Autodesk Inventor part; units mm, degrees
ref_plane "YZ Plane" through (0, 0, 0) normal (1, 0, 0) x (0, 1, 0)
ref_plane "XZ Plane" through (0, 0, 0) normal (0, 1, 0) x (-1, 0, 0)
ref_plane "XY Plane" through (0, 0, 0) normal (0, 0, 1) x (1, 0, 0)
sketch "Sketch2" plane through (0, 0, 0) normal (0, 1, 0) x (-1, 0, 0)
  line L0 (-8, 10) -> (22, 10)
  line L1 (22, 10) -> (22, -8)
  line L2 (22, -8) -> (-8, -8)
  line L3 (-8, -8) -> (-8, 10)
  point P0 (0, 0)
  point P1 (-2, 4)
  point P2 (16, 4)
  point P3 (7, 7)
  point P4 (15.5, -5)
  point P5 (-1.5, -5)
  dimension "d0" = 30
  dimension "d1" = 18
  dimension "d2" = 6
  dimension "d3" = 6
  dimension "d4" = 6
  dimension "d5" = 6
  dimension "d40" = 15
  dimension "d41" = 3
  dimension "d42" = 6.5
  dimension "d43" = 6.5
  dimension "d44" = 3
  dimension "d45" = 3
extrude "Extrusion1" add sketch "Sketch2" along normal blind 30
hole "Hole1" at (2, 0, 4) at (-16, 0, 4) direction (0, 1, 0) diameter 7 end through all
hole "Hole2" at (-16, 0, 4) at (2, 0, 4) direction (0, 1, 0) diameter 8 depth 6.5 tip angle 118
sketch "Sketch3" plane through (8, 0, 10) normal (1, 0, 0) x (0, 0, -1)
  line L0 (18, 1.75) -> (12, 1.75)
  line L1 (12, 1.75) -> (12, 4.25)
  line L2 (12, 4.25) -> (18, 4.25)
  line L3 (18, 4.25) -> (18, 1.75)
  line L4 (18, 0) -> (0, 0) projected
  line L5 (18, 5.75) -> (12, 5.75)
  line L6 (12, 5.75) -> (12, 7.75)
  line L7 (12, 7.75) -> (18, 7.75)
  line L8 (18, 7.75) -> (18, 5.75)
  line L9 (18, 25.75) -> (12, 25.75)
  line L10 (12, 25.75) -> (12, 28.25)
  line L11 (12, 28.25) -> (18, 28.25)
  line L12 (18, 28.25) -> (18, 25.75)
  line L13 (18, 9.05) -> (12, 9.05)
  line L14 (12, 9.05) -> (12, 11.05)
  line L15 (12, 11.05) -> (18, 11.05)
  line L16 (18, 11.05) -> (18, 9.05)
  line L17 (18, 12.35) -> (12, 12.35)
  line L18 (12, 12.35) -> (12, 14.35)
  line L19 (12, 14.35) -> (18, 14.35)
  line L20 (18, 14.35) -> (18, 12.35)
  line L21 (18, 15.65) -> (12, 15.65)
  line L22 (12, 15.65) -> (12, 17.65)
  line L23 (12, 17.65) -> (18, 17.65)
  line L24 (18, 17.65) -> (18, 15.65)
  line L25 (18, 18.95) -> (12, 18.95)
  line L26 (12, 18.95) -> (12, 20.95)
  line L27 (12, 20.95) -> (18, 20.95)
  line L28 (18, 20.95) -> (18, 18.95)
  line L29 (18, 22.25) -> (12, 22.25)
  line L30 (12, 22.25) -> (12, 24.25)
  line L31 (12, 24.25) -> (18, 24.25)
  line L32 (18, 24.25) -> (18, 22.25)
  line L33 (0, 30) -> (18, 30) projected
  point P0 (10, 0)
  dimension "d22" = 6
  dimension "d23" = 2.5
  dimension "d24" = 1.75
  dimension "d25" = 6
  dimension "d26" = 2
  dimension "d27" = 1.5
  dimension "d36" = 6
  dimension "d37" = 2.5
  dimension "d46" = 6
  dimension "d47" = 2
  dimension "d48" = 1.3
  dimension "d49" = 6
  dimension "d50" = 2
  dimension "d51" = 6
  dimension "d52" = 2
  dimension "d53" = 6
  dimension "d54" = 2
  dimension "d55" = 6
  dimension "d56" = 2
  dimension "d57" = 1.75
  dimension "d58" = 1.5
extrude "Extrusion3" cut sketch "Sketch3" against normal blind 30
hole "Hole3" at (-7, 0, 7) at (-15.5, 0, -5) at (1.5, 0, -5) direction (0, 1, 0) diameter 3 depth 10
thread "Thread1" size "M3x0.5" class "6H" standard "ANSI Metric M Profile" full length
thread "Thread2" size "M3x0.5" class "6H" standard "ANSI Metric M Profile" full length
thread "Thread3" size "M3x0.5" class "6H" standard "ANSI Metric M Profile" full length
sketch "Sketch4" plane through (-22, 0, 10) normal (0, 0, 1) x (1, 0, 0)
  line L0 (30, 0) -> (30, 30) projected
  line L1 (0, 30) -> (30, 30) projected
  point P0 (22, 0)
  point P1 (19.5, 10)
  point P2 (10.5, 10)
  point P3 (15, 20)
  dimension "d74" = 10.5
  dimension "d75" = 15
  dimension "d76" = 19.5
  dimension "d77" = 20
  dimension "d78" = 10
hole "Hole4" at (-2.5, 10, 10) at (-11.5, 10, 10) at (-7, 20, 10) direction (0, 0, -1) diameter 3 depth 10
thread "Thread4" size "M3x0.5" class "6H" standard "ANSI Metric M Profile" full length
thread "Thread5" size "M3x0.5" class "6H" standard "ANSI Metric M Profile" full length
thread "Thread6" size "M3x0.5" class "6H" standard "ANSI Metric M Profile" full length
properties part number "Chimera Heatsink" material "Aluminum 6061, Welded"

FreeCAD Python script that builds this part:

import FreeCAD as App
import Part
import Sketcher
from FreeCAD import Vector
Q = App.Units.Quantity

doc = App.newDocument("Part")
params = doc.addObject("Spreadsheet::Sheet", "Params")
for row, (alias, value) in enumerate([
    ("sketch1_width", "30 mm"),
    ("sketch1_height", "18 mm"),
    ("pad1_length", "30 mm"),
    ("sketch2_diameter", "7 mm"),
    ("hole_diameter", "7 mm"),
    ("sketch3_diameter", "8 mm"),
    ("hole2_diameter", "8 mm"),
    ("hole2_depth", "6.5 mm"),
    ("sketch4_width", "2 mm"),
    ("sketch4_height", "6 mm"),
    ("sketch4_width2", "2.5 mm"),
    ("pocket1_length", "30 mm"),
    ("sketch5_diameter", "3 mm"),
    ("hole3_diameter", "3 mm"),
    ("hole3_depth", "10 mm"),
    ("sketch6_diameter", "3 mm"),
    ("hole4_diameter", "3 mm"),
    ("hole4_depth", "10 mm"),
], start=1):
    params.set(f"A{row}", alias)
    params.set(f"B{row}", "=" + value)
    params.setAlias(f"B{row}", alias)

body = doc.addObject("PartDesign::Body", "Body")

sketch1 = body.newObject("Sketcher::SketchObject", "Sketch")
sketch1.AttachmentSupport = (doc.getObject("XZ_Plane"), [""])
sketch1.MapMode = "FlatFace"
sketch1.addGeometry(Part.LineSegment(Vector(-22, 10, 0), Vector(8, 10, 0)), False)
sketch1.addGeometry(Part.LineSegment(Vector(8, 10, 0), Vector(8, -8, 0)), False)
sketch1.addGeometry(Part.LineSegment(Vector(8, -8, 0), Vector(-22, -8, 0)), False)
sketch1.addGeometry(Part.LineSegment(Vector(-22, -8, 0), Vector(-22, 10, 0)), False)
sketch1.addConstraint(Sketcher.Constraint("Coincident", 0, 2, 1, 1))
sketch1.addConstraint(Sketcher.Constraint("Coincident", 1, 2, 2, 1))
sketch1.addConstraint(Sketcher.Constraint("Coincident", 2, 2, 3, 1))
sketch1.addConstraint(Sketcher.Constraint("Coincident", 3, 2, 0, 1))
sketch1.addConstraint(Sketcher.Constraint("Horizontal", 0))
sketch1.addConstraint(Sketcher.Constraint("Vertical", 1))
sketch1.addConstraint(Sketcher.Constraint("Horizontal", 2))
sketch1.addConstraint(Sketcher.Constraint("Vertical", 3))
sketch1.addConstraint(Sketcher.Constraint("DistanceX", 0, 1, 0, 2, Q("30 mm")))
sketch1.addConstraint(Sketcher.Constraint("DistanceY", 1, 2, 1, 1, Q("18 mm")))
sketch1.addConstraint(Sketcher.Constraint("DistanceX", -1, 1, 0, 2, Q("8 mm")))
sketch1.addConstraint(Sketcher.Constraint("DistanceY", -1, 1, 0, 2, Q("10 mm")))
sketch1.setExpression("Constraints[8]", "Params.sketch1_width")
sketch1.setExpression("Constraints[9]", "Params.sketch1_height")
pad1 = body.newObject("PartDesign::Pad", "Pad")
pad1.Profile = sketch1
pad1.setExpression("Length", "Params.pad1_length")
pad1.Reversed = True

sketch2 = body.newObject("Sketcher::SketchObject", "Sketch001")
sketch2.AttachmentSupport = (doc.getObject("XZ_Plane"), [""])
sketch2.MapMode = "FlatFace"
sketch2.addGeometry(Part.Circle(Vector(2, 4, 0), Vector(0, 0, 1), 3.5), False)
sketch2.addGeometry(Part.Circle(Vector(-16, 4, 0), Vector(0, 0, 1), 3.5), False)
sketch2.addConstraint(Sketcher.Constraint("Equal", 0, 1))
sketch2.addConstraint(Sketcher.Constraint("Horizontal", 0, 3, 1, 3))
sketch2.addConstraint(Sketcher.Constraint("Diameter", 0, Q("7 mm")))
sketch2.addConstraint(Sketcher.Constraint("DistanceX", -1, 1, 0, 3, Q("2 mm")))
sketch2.addConstraint(Sketcher.Constraint("DistanceY", -1, 1, 0, 3, Q("4 mm")))
sketch2.addConstraint(Sketcher.Constraint("DistanceX", 1, 3, -1, 1, Q("16 mm")))
sketch2.setExpression("Constraints[2]", "Params.sketch2_diameter")
doc.recompute()
hole = body.newObject("PartDesign::Hole", "Hole")
hole.Profile = sketch2
hole.ThreadType = "None"
hole.setExpression("Diameter", "Params.hole_diameter")
hole.DepthType = "ThroughAll"

sketch3 = body.newObject("Sketcher::SketchObject", "Sketch002")
sketch3.AttachmentSupport = (doc.getObject("XZ_Plane"), [""])
sketch3.MapMode = "FlatFace"
sketch3.addGeometry(Part.Circle(Vector(-16, 4, 0), Vector(0, 0, 1), 4), False)
sketch3.addGeometry(Part.Circle(Vector(2, 4, 0), Vector(0, 0, 1), 4), False)
sketch3.addConstraint(Sketcher.Constraint("Equal", 0, 1))
sketch3.addConstraint(Sketcher.Constraint("Horizontal", 0, 3, 1, 3))
sketch3.addConstraint(Sketcher.Constraint("Diameter", 0, Q("8 mm")))
sketch3.addConstraint(Sketcher.Constraint("DistanceX", 0, 3, -1, 1, Q("16 mm")))
sketch3.addConstraint(Sketcher.Constraint("DistanceY", -1, 1, 0, 3, Q("4 mm")))
sketch3.addConstraint(Sketcher.Constraint("DistanceX", -1, 1, 1, 3, Q("2 mm")))
sketch3.setExpression("Constraints[2]", "Params.sketch3_diameter")
doc.recompute()
hole2 = body.newObject("PartDesign::Hole", "Hole001")
hole2.Profile = sketch3
hole2.ThreadType = "None"
hole2.setExpression("Diameter", "Params.hole2_diameter")
hole2.DepthType = "Dimension"
hole2.setExpression("Depth", "Params.hole2_depth")
hole2.DrillPoint = "Angled"
hole2.DrillPointAngle = 118

sketch4 = body.newObject("Sketcher::SketchObject", "Sketch003")
sketch4.AttachmentSupport = (doc.getObject("YZ_Plane"), [""])
sketch4.MapMode = "FlatFace"
sketch4.AttachmentOffset = App.Placement(Vector(0, 0, 8), App.Rotation())
sketch4.addGeometry(Part.LineSegment(Vector(1.8, -2, 0), Vector(1.8, -8, 0)), False)
sketch4.addGeometry(Part.LineSegment(Vector(1.8, -8, 0), Vector(4.2, -8, 0)), False)
sketch4.addGeometry(Part.LineSegment(Vector(4.2, -8, 0), Vector(4.2, -2, 0)), False)
sketch4.addGeometry(Part.LineSegment(Vector(4.2, -2, 0), Vector(1.8, -2, 0)), False)
sketch4.addGeometry(Part.LineSegment(Vector(5.8, -2, 0), Vector(5.8, -8, 0)), False)
sketch4.addGeometry(Part.LineSegment(Vector(5.8, -8, 0), Vector(7.8, -8, 0)), False)
sketch4.addGeometry(Part.LineSegment(Vector(7.8, -8, 0), Vector(7.8, -2, 0)), False)
sketch4.addGeometry(Part.LineSegment(Vector(7.8, -2, 0), Vector(5.8, -2, 0)), False)
sketch4.addGeometry(Part.LineSegment(Vector(25.8, -2, 0), Vector(25.8, -8, 0)), False)
sketch4.addGeometry(Part.LineSegment(Vector(25.8, -8, 0), Vector(28.2, -8, 0)), False)
sketch4.addGeometry(Part.LineSegment(Vector(28.2, -8, 0), Vector(28.2, -2, 0)), False)
sketch4.addGeometry(Part.LineSegment(Vector(28.2, -2, 0), Vector(25.8, -2, 0)), False)
sketch4.addGeometry(Part.LineSegment(Vector(9.1, -2, 0), Vector(9.1, -8, 0)), False)
sketch4.addGeometry(Part.LineSegment(Vector(9.1, -8, 0), Vector(11.1, -8, 0)), False)
sketch4.addGeometry(Part.LineSegment(Vector(11.1, -8, 0), Vector(11.1, -2, 0)), False)
sketch4.addGeometry(Part.LineSegment(Vector(11.1, -2, 0), Vector(9.1, -2, 0)), False)
sketch4.addGeometry(Part.LineSegment(Vector(12.3, -2, 0), Vector(12.3, -8, 0)), False)
sketch4.addGeometry(Part.LineSegment(Vector(12.3, -8, 0), Vector(14.3, -8, 0)), False)
sketch4.addGeometry(Part.LineSegment(Vector(14.3, -8, 0), Vector(14.3, -2, 0)), False)
sketch4.addGeometry(Part.LineSegment(Vector(14.3, -2, 0), Vector(12.3, -2, 0)), False)
sketch4.addGeometry(Part.LineSegment(Vector(15.7, -2, 0), Vector(15.7, -8, 0)), False)
sketch4.addGeometry(Part.LineSegment(Vector(15.7, -8, 0), Vector(17.6, -8, 0)), False)
sketch4.addGeometry(Part.LineSegment(Vector(17.6, -8, 0), Vector(17.6, -2, 0)), False)
sketch4.addGeometry(Part.LineSegment(Vector(17.6, -2, 0), Vector(15.7, -2, 0)), False)
sketch4.addGeometry(Part.LineSegment(Vector(18.9, -2, 0), Vector(18.9, -8, 0)), False)
sketch4.addGeometry(Part.LineSegment(Vector(18.9, -8, 0), Vector(20.9, -8, 0)), False)
sketch4.addGeometry(Part.LineSegment(Vector(20.9, -8, 0), Vector(20.9, -2, 0)), False)
sketch4.addGeometry(Part.LineSegment(Vector(20.9, -2, 0), Vector(18.9, -2, 0)), False)
sketch4.addGeometry(Part.LineSegment(Vector(22.2, -2, 0), Vector(22.2, -8, 0)), False)
sketch4.addGeometry(Part.LineSegment(Vector(22.2, -8, 0), Vector(24.2, -8, 0)), False)
sketch4.addGeometry(Part.LineSegment(Vector(24.2, -8, 0), Vector(24.2, -2, 0)), False)
sketch4.addGeometry(Part.LineSegment(Vector(24.2, -2, 0), Vector(22.2, -2, 0)), False)
sketch4.addConstraint(Sketcher.Constraint("Coincident", 0, 2, 1, 1))
sketch4.addConstraint(Sketcher.Constraint("Coincident", 1, 2, 2, 1))
sketch4.addConstraint(Sketcher.Constraint("Coincident", 2, 2, 3, 1))
sketch4.addConstraint(Sketcher.Constraint("Coincident", 3, 2, 0, 1))
sketch4.addConstraint(Sketcher.Constraint("Coincident", 4, 2, 5, 1))
sketch4.addConstraint(Sketcher.Constraint("Coincident", 5, 2, 6, 1))
sketch4.addConstraint(Sketcher.Constraint("Coincident", 6, 2, 7, 1))
sketch4.addConstraint(Sketcher.Constraint("Coincident", 7, 2, 4, 1))
sketch4.addConstraint(Sketcher.Constraint("Coincident", 8, 2, 9, 1))
sketch4.addConstraint(Sketcher.Constraint("Coincident", 9, 2, 10, 1))
sketch4.addConstraint(Sketcher.Constraint("Coincident", 10, 2, 11, 1))
sketch4.addConstraint(Sketcher.Constraint("Coincident", 11, 2, 8, 1))
sketch4.addConstraint(Sketcher.Constraint("Coincident", 12, 2, 13, 1))
sketch4.addConstraint(Sketcher.Constraint("Coincident", 13, 2, 14, 1))
sketch4.addConstraint(Sketcher.Constraint("Coincident", 14, 2, 15, 1))
sketch4.addConstraint(Sketcher.Constraint("Coincident", 15, 2, 12, 1))
sketch4.addConstraint(Sketcher.Constraint("Coincident", 16, 2, 17, 1))
sketch4.addConstraint(Sketcher.Constraint("Coincident", 17, 2, 18, 1))
sketch4.addConstraint(Sketcher.Constraint("Coincident", 18, 2, 19, 1))
sketch4.addConstraint(Sketcher.Constraint("Coincident", 19, 2, 16, 1))
sketch4.addConstraint(Sketcher.Constraint("Coincident", 20, 2, 21, 1))
sketch4.addConstraint(Sketcher.Constraint("Coincident", 21, 2, 22, 1))
sketch4.addConstraint(Sketcher.Constraint("Coincident", 22, 2, 23, 1))
sketch4.addConstraint(Sketcher.Constraint("Coincident", 23, 2, 20, 1))
sketch4.addConstraint(Sketcher.Constraint("Coincident", 24, 2, 25, 1))
sketch4.addConstraint(Sketcher.Constraint("Coincident", 25, 2, 26, 1))
sketch4.addConstraint(Sketcher.Constraint("Coincident", 26, 2, 27, 1))
sketch4.addConstraint(Sketcher.Constraint("Coincident", 27, 2, 24, 1))
sketch4.addConstraint(Sketcher.Constraint("Coincident", 28, 2, 29, 1))
sketch4.addConstraint(Sketcher.Constraint("Coincident", 29, 2, 30, 1))
sketch4.addConstraint(Sketcher.Constraint("Coincident", 30, 2, 31, 1))
sketch4.addConstraint(Sketcher.Constraint("Coincident", 31, 2, 28, 1))
sketch4.addConstraint(Sketcher.Constraint("Vertical", 0))
sketch4.addConstraint(Sketcher.Constraint("Horizontal", 1))
sketch4.addConstraint(Sketcher.Constraint("Vertical", 2))
sketch4.addConstraint(Sketcher.Constraint("Horizontal", 3))
sketch4.addConstraint(Sketcher.Constraint("Vertical", 4))
sketch4.addConstraint(Sketcher.Constraint("Horizontal", 5))
sketch4.addConstraint(Sketcher.Constraint("Vertical", 6))
sketch4.addConstraint(Sketcher.Constraint("Horizontal", 7))
sketch4.addConstraint(Sketcher.Constraint("Vertical", 8))
sketch4.addConstraint(Sketcher.Constraint("Horizontal", 9))
sketch4.addConstraint(Sketcher.Constraint("Vertical", 10))
sketch4.addConstraint(Sketcher.Constraint("Horizontal", 11))
sketch4.addConstraint(Sketcher.Constraint("Vertical", 12))
sketch4.addConstraint(Sketcher.Constraint("Horizontal", 13))
sketch4.addConstraint(Sketcher.Constraint("Vertical", 14))
sketch4.addConstraint(Sketcher.Constraint("Horizontal", 15))
sketch4.addConstraint(Sketcher.Constraint("Vertical", 16))
sketch4.addConstraint(Sketcher.Constraint("Horizontal", 17))
sketch4.addConstraint(Sketcher.Constraint("Vertical", 18))
sketch4.addConstraint(Sketcher.Constraint("Horizontal", 19))
sketch4.addConstraint(Sketcher.Constraint("Vertical", 20))
sketch4.addConstraint(Sketcher.Constraint("Horizontal", 21))
sketch4.addConstraint(Sketcher.Constraint("Vertical", 22))
sketch4.addConstraint(Sketcher.Constraint("Horizontal", 23))
sketch4.addConstraint(Sketcher.Constraint("Vertical", 24))
sketch4.addConstraint(Sketcher.Constraint("Horizontal", 25))
sketch4.addConstraint(Sketcher.Constraint("Vertical", 26))
sketch4.addConstraint(Sketcher.Constraint("Horizontal", 27))
sketch4.addConstraint(Sketcher.Constraint("Vertical", 28))
sketch4.addConstraint(Sketcher.Constraint("Horizontal", 29))
sketch4.addConstraint(Sketcher.Constraint("Vertical", 30))
sketch4.addConstraint(Sketcher.Constraint("Horizontal", 31))
sketch4.addConstraint(Sketcher.Constraint("Horizontal", 1, 2, 4, 2))
sketch4.addConstraint(Sketcher.Constraint("Horizontal", 3, 2, 6, 2))
sketch4.addConstraint(Sketcher.Constraint("Horizontal", 5, 2, 8, 2))
sketch4.addConstraint(Sketcher.Constraint("Horizontal", 7, 2, 10, 2))
sketch4.addConstraint(Sketcher.Constraint("Horizontal", 9, 2, 12, 2))
sketch4.addConstraint(Sketcher.Constraint("Horizontal", 11, 2, 14, 2))
sketch4.addConstraint(Sketcher.Constraint("Horizontal", 13, 2, 16, 2))
sketch4.addConstraint(Sketcher.Constraint("Horizontal", 15, 2, 18, 2))
sketch4.addConstraint(Sketcher.Constraint("Horizontal", 17, 2, 20, 2))
sketch4.addConstraint(Sketcher.Constraint("Horizontal", 19, 2, 22, 2))
sketch4.addConstraint(Sketcher.Constraint("Horizontal", 21, 2, 24, 2))
sketch4.addConstraint(Sketcher.Constraint("Horizontal", 23, 2, 26, 2))
sketch4.addConstraint(Sketcher.Constraint("Horizontal", 25, 2, 28, 2))
sketch4.addConstraint(Sketcher.Constraint("Horizontal", 27, 2, 30, 2))
sketch4.addConstraint(Sketcher.Constraint("Equal", 3, 9))
sketch4.addConstraint(Sketcher.Constraint("Equal", 7, 13))
sketch4.addConstraint(Sketcher.Constraint("Equal", 15, 17))
sketch4.addConstraint(Sketcher.Constraint("Equal", 19, 21))
sketch4.addConstraint(Sketcher.Constraint("Equal", 23, 25))
sketch4.addConstraint(Sketcher.Constraint("Equal", 27, 29))
sketch4.addConstraint(Sketcher.Constraint("DistanceX", 5, 1, 5, 2, Q("2 mm")))
sketch4.addConstraint(Sketcher.Constraint("DistanceY", 0, 2, 0, 1, Q("6 mm")))
sketch4.addConstraint(Sketcher.Constraint("DistanceX", 1, 1, 1, 2, Q("2.5 mm")))
sketch4.addConstraint(Sketcher.Constraint("DistanceY", 2, 2, -1, 1, Q("2 mm")))
sketch4.addConstraint(Sketcher.Constraint("DistanceX", 0, 2, 5, 2, Q("6 mm")))
sketch4.addConstraint(Sketcher.Constraint("DistanceX", 28, 2, 9, 2, Q("6 mm")))
sketch4.addConstraint(Sketcher.Constraint("DistanceX", 5, 2, 12, 2, Q("1.3 mm")))
sketch4.addConstraint(Sketcher.Constraint("DistanceX", 13, 2, 16, 2, Q("1.3 mm")))
sketch4.addConstraint(Sketcher.Constraint("DistanceX", 17, 2, 20, 2, Q("1.3 mm")))
sketch4.addConstraint(Sketcher.Constraint("DistanceX", 21, 2, 24, 2, Q("1.3 mm")))
sketch4.addConstraint(Sketcher.Constraint("DistanceX", 25, 2, 28, 2, Q("1.3 mm")))
sketch4.addConstraint(Sketcher.Constraint("DistanceX", -1, 1, 0, 2, Q("1.75 mm")))
sketch4.setExpression("Constraints[84]", "Params.sketch4_width")
sketch4.setExpression("Constraints[85]", "Params.sketch4_height")
sketch4.setExpression("Constraints[86]", "Params.sketch4_width2")
pocket1 = body.newObject("PartDesign::Pocket", "Pocket")
pocket1.Profile = sketch4
pocket1.setExpression("Length", "Params.pocket1_length")

sketch5 = body.newObject("Sketcher::SketchObject", "Sketch004")
sketch5.AttachmentSupport = (doc.getObject("XZ_Plane"), [""])
sketch5.MapMode = "FlatFace"
sketch5.addGeometry(Part.Circle(Vector(-7, 7, 0), Vector(0, 0, 1), 1.5), False)
sketch5.addGeometry(Part.Circle(Vector(-15.5, -5, 0), Vector(0, 0, 1), 1.5), False)
sketch5.addGeometry(Part.Circle(Vector(1.5, -5, 0), Vector(0, 0, 1), 1.5), False)
sketch5.addConstraint(Sketcher.Constraint("Equal", 0, 1))
sketch5.addConstraint(Sketcher.Constraint("Equal", 1, 2))
sketch5.addConstraint(Sketcher.Constraint("Horizontal", 1, 3, 2, 3))
sketch5.addConstraint(Sketcher.Constraint("Diameter", 0, Q("3 mm")))
sketch5.addConstraint(Sketcher.Constraint("DistanceX", 0, 3, -1, 1, Q("7 mm")))
sketch5.addConstraint(Sketcher.Constraint("DistanceY", -1, 1, 0, 3, Q("7 mm")))
sketch5.addConstraint(Sketcher.Constraint("DistanceY", 1, 3, -1, 1, Q("5 mm")))
sketch5.addConstraint(Sketcher.Constraint("DistanceX", 1, 3, 2, 3, Q("17 mm")))
sketch5.addConstraint(Sketcher.Constraint("DistanceX", 1, 3, -1, 1, Q("15.5 mm")))
sketch5.setExpression("Constraints[3]", "Params.sketch5_diameter")
doc.recompute()
hole3 = body.newObject("PartDesign::Hole", "Hole002")
hole3.Profile = sketch5
hole3.ThreadType = "None"
hole3.setExpression("Diameter", "Params.hole3_diameter")
hole3.DepthType = "Dimension"
hole3.setExpression("Depth", "Params.hole3_depth")
hole3.DrillPoint = "Flat"

sketch6 = body.newObject("Sketcher::SketchObject", "Sketch005")
sketch6.AttachmentSupport = (doc.getObject("XY_Plane"), [""])
sketch6.MapMode = "FlatFace"
sketch6.AttachmentOffset = App.Placement(Vector(0, 0, 10), App.Rotation())
sketch6.addGeometry(Part.Circle(Vector(-2.5, 10, 0), Vector(0, 0, 1), 1.5), False)
sketch6.addGeometry(Part.Circle(Vector(-11.5, 10, 0), Vector(0, 0, 1), 1.5), False)
sketch6.addGeometry(Part.Circle(Vector(-7, 20, 0), Vector(0, 0, 1), 1.5), False)
sketch6.addConstraint(Sketcher.Constraint("Equal", 0, 1))
sketch6.addConstraint(Sketcher.Constraint("Equal", 1, 2))
sketch6.addConstraint(Sketcher.Constraint("Horizontal", 0, 3, 1, 3))
sketch6.addConstraint(Sketcher.Constraint("Diameter", 0, Q("3 mm")))
sketch6.addConstraint(Sketcher.Constraint("DistanceY", -1, 1, 0, 3, Q("10 mm")))
sketch6.addConstraint(Sketcher.Constraint("DistanceX", 2, 3, -1, 1, Q("7 mm")))
sketch6.addConstraint(Sketcher.Constraint("DistanceY", -1, 1, 2, 3, Q("20 mm")))
sketch6.addConstraint(Sketcher.Constraint("DistanceX", 1, 3, 0, 3, Q("9 mm")))
sketch6.addConstraint(Sketcher.Constraint("DistanceX", 0, 3, -1, 1, Q("2.5 mm")))
sketch6.setExpression("Constraints[3]", "Params.sketch6_diameter")
doc.recompute()
hole4 = body.newObject("PartDesign::Hole", "Hole003")
hole4.Profile = sketch6
hole4.ThreadType = "None"
hole4.setExpression("Diameter", "Params.hole4_diameter")
hole4.DepthType = "Dimension"
hole4.setExpression("Depth", "Params.hole4_depth")
hole4.DrillPoint = "Flat"

doc.recompute()
